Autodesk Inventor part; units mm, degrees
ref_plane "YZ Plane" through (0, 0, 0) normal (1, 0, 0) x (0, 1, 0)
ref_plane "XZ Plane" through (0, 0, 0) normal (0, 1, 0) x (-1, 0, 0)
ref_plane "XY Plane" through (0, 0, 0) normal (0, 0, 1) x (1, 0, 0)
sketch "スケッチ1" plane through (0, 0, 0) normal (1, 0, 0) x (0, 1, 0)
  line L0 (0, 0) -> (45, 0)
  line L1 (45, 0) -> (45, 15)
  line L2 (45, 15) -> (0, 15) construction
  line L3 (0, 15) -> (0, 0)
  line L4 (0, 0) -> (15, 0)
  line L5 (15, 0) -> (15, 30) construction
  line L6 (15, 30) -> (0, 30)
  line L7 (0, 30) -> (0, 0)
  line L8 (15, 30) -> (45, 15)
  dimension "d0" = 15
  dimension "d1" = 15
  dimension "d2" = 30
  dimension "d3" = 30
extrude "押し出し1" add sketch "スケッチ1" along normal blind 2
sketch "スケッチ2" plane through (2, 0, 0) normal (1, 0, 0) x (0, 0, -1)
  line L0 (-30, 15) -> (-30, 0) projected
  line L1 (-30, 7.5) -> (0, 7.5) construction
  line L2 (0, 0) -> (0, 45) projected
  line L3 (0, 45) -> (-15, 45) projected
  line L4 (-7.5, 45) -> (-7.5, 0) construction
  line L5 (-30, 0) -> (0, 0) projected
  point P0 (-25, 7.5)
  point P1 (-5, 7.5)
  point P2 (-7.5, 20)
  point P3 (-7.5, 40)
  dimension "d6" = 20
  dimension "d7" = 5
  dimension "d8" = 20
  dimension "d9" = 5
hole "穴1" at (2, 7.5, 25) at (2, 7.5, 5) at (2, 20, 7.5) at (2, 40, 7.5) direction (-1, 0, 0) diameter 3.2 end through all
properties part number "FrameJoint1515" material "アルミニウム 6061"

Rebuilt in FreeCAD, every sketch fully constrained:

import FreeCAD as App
import Part
import Sketcher
from FreeCAD import Vector

doc = App.newDocument("Part")
body = doc.addObject("PartDesign::Body", "Body")

# Sketch on YZ plane
sketch1 = body.newObject("Sketcher::SketchObject", "Sketch")
sketch1.AttachmentSupport = (doc.getObject("YZ_Plane"), [""])
sketch1.MapMode = "FlatFace"
sketch1.addGeometry([
    Part.LineSegment(Vector(0, 30, 0), Vector(0, 0, 0)),  # 0
    Part.LineSegment(Vector(0, 0, 0), Vector(45, 0, 0)),  # 1
    Part.LineSegment(Vector(45, 0, 0), Vector(45, 15, 0)),  # 2
    Part.LineSegment(Vector(45, 15, 0), Vector(15, 30, 0)),  # 3
    Part.LineSegment(Vector(15, 30, 0), Vector(0, 30, 0)),  # 4
], False)
sketch1.addConstraint([
    Sketcher.Constraint("Coincident", 0, 2, 1, 1),
    Sketcher.Constraint("Coincident", 1, 2, 2, 1),
    Sketcher.Constraint("Coincident", 2, 2, 3, 1),
    Sketcher.Constraint("Coincident", 3, 2, 4, 1),
    Sketcher.Constraint("Coincident", 4, 2, 0, 1),
    Sketcher.Constraint("Vertical", 0),
    Sketcher.Constraint("Horizontal", 1),
    Sketcher.Constraint("Vertical", 2),
    Sketcher.Constraint("Horizontal", 4),
    Sketcher.Constraint("Coincident", 0, 2, -1, 1),
    Sketcher.Constraint("Equal", 4, 2),
    Sketcher.Constraint("DistanceX", 4, 2, 4, 1, 15.0),
    Sketcher.Constraint("DistanceY", 0, 2, 0, 1, 30.0),
    Sketcher.Constraint("DistanceX", 3, 2, 2, 2, 30.0),
])
pad1 = body.newObject("PartDesign::Pad", "Pad")
pad1.Profile = sketch1
pad1.Length = 2

# Sketch on YZ plane
sketch2 = body.newObject("Sketcher::SketchObject", "Sketch001")
sketch2.AttachmentSupport = (doc.getObject("YZ_Plane"), [""])
sketch2.MapMode = "FlatFace"
sketch2.AttachmentOffset = App.Placement(Vector(0, 0, 2), App.Rotation())
sketch2.addGeometry([
    Part.Circle(Vector(7.5, 25, 0), Vector(0, 0, 1), 1.6),
    Part.Circle(Vector(7.5, 5, 0), Vector(0, 0, 1), 1.6),
    Part.Circle(Vector(20, 7.5, 0), Vector(0, 0, 1), 1.6),
    Part.Circle(Vector(40, 7.5, 0), Vector(0, 0, 1), 1.6),
], False)
sketch2.addConstraint([
    Sketcher.Constraint("Equal", 0, 1),
    Sketcher.Constraint("Equal", 1, 2),
    Sketcher.Constraint("Equal", 2, 3),
    Sketcher.Constraint("Horizontal", 2, 3, 3, 3),
    Sketcher.Constraint("Vertical", 0, 3, 1, 3),
    Sketcher.Constraint("Diameter", 0, 3.2),
    Sketcher.Constraint("DistanceY", -1, 1, 0, 3, 25.0),
    Sketcher.Constraint("DistanceY", -1, 1, 1, 3, 5.0),
    Sketcher.Constraint("DistanceX", -1, 1, 2, 3, 20.0),
    Sketcher.Constraint("DistanceX", -1, 1, 3, 3, 40.0),
    Sketcher.Constraint("DistanceX", -1, 1, 0, 3, 7.5),
    Sketcher.Constraint("DistanceY", -1, 1, 2, 3, 7.5),
])
doc.recompute()
hole = body.newObject("PartDesign::Hole", "Hole")
hole.Profile = sketch2
hole.ThreadType = "None"
hole.Diameter = 3.2
hole.DepthType = "ThroughAll"

doc.recompute()
